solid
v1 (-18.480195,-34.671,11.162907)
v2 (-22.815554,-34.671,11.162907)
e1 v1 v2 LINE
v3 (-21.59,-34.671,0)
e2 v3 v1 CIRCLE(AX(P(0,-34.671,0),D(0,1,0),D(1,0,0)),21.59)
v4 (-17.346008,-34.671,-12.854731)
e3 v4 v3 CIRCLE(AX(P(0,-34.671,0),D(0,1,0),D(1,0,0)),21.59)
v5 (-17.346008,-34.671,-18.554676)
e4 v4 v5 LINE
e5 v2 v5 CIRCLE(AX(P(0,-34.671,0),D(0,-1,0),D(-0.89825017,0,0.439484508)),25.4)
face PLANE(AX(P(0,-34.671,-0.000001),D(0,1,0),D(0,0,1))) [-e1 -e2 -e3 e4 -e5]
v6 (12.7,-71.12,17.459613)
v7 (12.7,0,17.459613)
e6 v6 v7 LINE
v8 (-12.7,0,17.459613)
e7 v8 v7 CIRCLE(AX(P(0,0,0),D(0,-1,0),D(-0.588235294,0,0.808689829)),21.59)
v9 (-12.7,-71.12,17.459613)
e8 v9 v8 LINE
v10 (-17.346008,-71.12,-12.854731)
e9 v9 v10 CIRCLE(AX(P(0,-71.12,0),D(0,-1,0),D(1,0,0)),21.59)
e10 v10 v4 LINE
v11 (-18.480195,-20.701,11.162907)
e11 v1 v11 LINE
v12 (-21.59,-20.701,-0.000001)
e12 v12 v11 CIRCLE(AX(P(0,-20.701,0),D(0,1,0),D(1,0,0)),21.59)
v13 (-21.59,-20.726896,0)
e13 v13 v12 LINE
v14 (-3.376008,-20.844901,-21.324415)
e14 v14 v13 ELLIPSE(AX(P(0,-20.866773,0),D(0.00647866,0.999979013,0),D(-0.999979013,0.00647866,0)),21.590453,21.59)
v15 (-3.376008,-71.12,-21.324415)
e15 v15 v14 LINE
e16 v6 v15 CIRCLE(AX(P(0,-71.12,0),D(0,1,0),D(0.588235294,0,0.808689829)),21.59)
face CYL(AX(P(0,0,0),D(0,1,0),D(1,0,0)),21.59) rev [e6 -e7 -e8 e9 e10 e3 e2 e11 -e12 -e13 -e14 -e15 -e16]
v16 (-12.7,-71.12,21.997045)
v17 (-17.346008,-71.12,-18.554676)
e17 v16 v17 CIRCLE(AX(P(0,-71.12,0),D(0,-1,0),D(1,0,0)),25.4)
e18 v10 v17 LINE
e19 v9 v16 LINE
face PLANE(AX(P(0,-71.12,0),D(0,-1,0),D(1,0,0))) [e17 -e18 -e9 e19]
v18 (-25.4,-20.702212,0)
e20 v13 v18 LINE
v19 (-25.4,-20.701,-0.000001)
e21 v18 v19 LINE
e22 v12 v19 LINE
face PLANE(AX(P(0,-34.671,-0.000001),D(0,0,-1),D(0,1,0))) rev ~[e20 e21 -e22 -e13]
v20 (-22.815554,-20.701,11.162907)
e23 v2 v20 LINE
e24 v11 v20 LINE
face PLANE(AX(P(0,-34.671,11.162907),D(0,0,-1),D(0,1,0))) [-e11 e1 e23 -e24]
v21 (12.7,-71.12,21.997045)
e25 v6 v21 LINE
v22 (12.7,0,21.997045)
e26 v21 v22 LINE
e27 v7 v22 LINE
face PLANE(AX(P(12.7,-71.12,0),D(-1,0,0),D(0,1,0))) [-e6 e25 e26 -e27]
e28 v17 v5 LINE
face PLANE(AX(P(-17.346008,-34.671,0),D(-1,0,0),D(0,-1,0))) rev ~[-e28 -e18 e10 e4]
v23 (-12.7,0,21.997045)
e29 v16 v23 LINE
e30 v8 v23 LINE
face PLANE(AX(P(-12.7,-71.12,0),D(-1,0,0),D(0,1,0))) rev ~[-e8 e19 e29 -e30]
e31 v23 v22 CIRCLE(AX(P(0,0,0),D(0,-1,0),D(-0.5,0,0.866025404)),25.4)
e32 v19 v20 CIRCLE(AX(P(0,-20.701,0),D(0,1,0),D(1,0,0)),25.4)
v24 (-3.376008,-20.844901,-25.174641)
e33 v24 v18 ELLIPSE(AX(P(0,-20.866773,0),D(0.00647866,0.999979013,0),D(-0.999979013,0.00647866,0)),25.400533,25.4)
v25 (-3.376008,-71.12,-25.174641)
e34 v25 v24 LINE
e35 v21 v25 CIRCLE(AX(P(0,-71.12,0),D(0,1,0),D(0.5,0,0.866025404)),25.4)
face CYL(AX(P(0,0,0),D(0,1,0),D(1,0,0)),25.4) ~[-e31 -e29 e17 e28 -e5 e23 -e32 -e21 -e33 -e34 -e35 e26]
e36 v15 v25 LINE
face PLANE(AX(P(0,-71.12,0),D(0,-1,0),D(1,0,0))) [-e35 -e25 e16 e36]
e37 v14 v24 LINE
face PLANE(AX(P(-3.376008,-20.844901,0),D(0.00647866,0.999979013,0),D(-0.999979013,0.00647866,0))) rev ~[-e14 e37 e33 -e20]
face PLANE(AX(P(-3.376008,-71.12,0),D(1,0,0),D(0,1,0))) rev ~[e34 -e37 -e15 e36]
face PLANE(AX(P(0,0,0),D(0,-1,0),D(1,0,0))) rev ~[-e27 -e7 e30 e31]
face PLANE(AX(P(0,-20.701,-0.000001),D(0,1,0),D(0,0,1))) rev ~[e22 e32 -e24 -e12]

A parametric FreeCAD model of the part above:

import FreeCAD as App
import Part
import Sketcher
Q = App.Units.Quantity


def add_polygon(sketch, points):
    """Adds a closed chain of lines whose ends are joined by coincident constraints."""
    first, n = sketch.GeometryCount, len(points)
    for a, b in zip(points, points[1:] + points[:1]):
        sketch.addGeometry(Part.LineSegment(App.Vector(*a, 0), App.Vector(*b, 0)), False)
    for i in range(n):
        sketch.addConstraint(Sketcher.Constraint("Coincident", first + i, 2, first + (i + 1) % n, 1))

doc = App.newDocument("Part")
params = doc.addObject("Spreadsheet::Sheet", "Params")
for row, (alias, value) in enumerate([
    ("sketch1_diameter", "2 in"),
    ("sketch1_diameter2", "1.7 in"),
    ("pad1_length", "2.8 in"),
    ("sketch2_width", "0.55 in"),
    ("sketch2_length", "0.55 in"),
    ("sketch2_height", "1.435 in"),
    ("pocket1_length", "1 in"),
    ("sketch3_width", "0.55 in"),
    ("pocket2_length", "1 in"),
    ("sketch4_width", "1 in"),
    ("sketch4_height", "2.8 in"),
    ("pocket3_length", "1 in"),
], start=1):
    params.set(f"A{row}", alias)
    params.set(f"B{row}", "=" + value)
    params.setAlias(f"B{row}", alias)

body = doc.addObject("PartDesign::Body", "Body")

sketch1 = body.newObject("Sketcher::SketchObject", "Sketch")
sketch1.AttachmentSupport = (doc.getObject("XZ_Plane"), [""])
sketch1.MapMode = "FlatFace"
sketch1.addGeometry([
    Part.Circle(App.Vector(0, 0, 0), App.Vector(0, 0, 1), 25),
    Part.Circle(App.Vector(0, 0, 0), App.Vector(0, 0, 1), 22),
], False)
sketch1.addConstraint([
    Sketcher.Constraint("Coincident", 0, 3, -1, 1),
    Sketcher.Constraint("Coincident", 1, 3, -1, 1),
    Sketcher.Constraint("Diameter", 0, Q("2 in")),
    Sketcher.Constraint("Diameter", 1, Q("1.7 in")),
])
sketch1.setExpression("Constraints[2]", "Params.sketch1_diameter")
sketch1.setExpression("Constraints[3]", "Params.sketch1_diameter2")
pad1 = body.newObject("PartDesign::Pad", "Pad")
pad1.Profile = sketch1
pad1.setExpression("Length", "Params.pad1_length")

sketch2 = body.newObject("Sketcher::SketchObject", "Sketch001")
sketch2.AttachmentSupport = (doc.getObject("XY_Plane"), [""])
sketch2.MapMode = "FlatFace"
add_polygon(sketch2, [(-17, -35), (-17, -71), (-3, -71), (-3, -21), (-26, -21), (-26, -35)])
sketch2.addConstraint([
    Sketcher.Constraint("Vertical", 0),
    Sketcher.Constraint("Horizontal", 1),
    Sketcher.Constraint("Vertical", 2),
    Sketcher.Constraint("Horizontal", 5),
    Sketcher.Constraint("DistanceX", 1, 1, 1, 2, Q("0.55 in")),
    Sketcher.Constraint("DistanceY", 0, 2, -1, 1, Q("2.8 in")),
    Sketcher.Constraint("Distance", 4, Q("0.55 in")),
    Sketcher.Constraint("DistanceY", 0, 2, 0, 1, Q("1.435 in")),
    Sketcher.Constraint("DistanceY", 2, 1, 2, 2, Q("50.275099 mm")),
    Sketcher.Constraint("DistanceX", 5, 1, 5, 2, Q("8.250484 mm")),
    Sketcher.Constraint("DistanceX", 0, 2, -1, 1, Q("17.346008 mm")),
    Sketcher.Constraint("DistanceX", 3, 2, 2, 2, Q("22.210608 mm")),
])
sketch2.setExpression("Constraints[10]", "Params.sketch2_width")
sketch2.setExpression("Constraints[12]", "Params.sketch2_length")
sketch2.setExpression("Constraints[13]", "Params.sketch2_height")
pocket1 = body.newObject("PartDesign::Pocket", "Pocket")
pocket1.Profile = sketch2
pocket1.setExpression("Length", "Params.pocket1_length")

sketch3 = body.newObject("Sketcher::SketchObject", "Sketch002")
sketch3.AttachmentSupport = (doc.getObject("YZ_Plane"), [""])
sketch3.MapMode = "FlatFace"
add_polygon(sketch3, [(-35, 11), (-35, 0), (-21, 0), (-21, 11)])
sketch3.addConstraint([
    Sketcher.Constraint("Vertical", 0),
    Sketcher.Constraint("Horizontal", 1),
    Sketcher.Constraint("Vertical", 2),
    Sketcher.Constraint("Horizontal", 3),
    Sketcher.Constraint("PointOnObject", 0, 2, -1),
    Sketcher.Constraint("DistanceX", 1, 1, 1, 2, Q("0.55 in")),
    Sketcher.Constraint("DistanceX", 0, 2, -1, 1, Q("1.365 in")),
    Sketcher.Constraint("DistanceY", 0, 2, 0, 1, Q("11.162907 mm")),
])
sketch3.setExpression("Constraints[9]", "Params.sketch3_width")
pocket2 = body.newObject("PartDesign::Pocket", "Pocket001")
pocket2.Profile = sketch3
pocket2.setExpression("Length", "Params.pocket2_length")

sketch4 = body.newObject("Sketcher::SketchObject", "Sketch003")
sketch4.AttachmentSupport = (doc.getObject("XY_Plane"), [""])
sketch4.MapMode = "FlatFace"
add_polygon(sketch4, [(-13, 0), (-13, -71), (13, -71), (13, 0)])
sketch4.addConstraint([
    Sketcher.Constraint("Vertical", 0),
    Sketcher.Constraint("Horizontal", 1),
    Sketcher.Constraint("Vertical", 2),
    Sketcher.Constraint("Horizontal", 3),
    Sketcher.Constraint("Symmetric", 2, 2, 3, 2, -1, 1),
    Sketcher.Constraint("DistanceX", 1, 1, 1, 2, Q("1 in")),
    Sketcher.Constraint("DistanceY", 0, 2, 0, 1, Q("2.8 in")),
])
sketch4.setExpression("Constraints[9]", "Params.sketch4_width")
sketch4.setExpression("Constraints[10]", "Params.sketch4_height")
pocket3 = body.newObject("PartDesign::Pocket", "Pocket002")
pocket3.Profile = sketch4
pocket3.setExpression("Length", "Params.pocket3_length")
pocket3.Reversed = True

doc.recompute()
